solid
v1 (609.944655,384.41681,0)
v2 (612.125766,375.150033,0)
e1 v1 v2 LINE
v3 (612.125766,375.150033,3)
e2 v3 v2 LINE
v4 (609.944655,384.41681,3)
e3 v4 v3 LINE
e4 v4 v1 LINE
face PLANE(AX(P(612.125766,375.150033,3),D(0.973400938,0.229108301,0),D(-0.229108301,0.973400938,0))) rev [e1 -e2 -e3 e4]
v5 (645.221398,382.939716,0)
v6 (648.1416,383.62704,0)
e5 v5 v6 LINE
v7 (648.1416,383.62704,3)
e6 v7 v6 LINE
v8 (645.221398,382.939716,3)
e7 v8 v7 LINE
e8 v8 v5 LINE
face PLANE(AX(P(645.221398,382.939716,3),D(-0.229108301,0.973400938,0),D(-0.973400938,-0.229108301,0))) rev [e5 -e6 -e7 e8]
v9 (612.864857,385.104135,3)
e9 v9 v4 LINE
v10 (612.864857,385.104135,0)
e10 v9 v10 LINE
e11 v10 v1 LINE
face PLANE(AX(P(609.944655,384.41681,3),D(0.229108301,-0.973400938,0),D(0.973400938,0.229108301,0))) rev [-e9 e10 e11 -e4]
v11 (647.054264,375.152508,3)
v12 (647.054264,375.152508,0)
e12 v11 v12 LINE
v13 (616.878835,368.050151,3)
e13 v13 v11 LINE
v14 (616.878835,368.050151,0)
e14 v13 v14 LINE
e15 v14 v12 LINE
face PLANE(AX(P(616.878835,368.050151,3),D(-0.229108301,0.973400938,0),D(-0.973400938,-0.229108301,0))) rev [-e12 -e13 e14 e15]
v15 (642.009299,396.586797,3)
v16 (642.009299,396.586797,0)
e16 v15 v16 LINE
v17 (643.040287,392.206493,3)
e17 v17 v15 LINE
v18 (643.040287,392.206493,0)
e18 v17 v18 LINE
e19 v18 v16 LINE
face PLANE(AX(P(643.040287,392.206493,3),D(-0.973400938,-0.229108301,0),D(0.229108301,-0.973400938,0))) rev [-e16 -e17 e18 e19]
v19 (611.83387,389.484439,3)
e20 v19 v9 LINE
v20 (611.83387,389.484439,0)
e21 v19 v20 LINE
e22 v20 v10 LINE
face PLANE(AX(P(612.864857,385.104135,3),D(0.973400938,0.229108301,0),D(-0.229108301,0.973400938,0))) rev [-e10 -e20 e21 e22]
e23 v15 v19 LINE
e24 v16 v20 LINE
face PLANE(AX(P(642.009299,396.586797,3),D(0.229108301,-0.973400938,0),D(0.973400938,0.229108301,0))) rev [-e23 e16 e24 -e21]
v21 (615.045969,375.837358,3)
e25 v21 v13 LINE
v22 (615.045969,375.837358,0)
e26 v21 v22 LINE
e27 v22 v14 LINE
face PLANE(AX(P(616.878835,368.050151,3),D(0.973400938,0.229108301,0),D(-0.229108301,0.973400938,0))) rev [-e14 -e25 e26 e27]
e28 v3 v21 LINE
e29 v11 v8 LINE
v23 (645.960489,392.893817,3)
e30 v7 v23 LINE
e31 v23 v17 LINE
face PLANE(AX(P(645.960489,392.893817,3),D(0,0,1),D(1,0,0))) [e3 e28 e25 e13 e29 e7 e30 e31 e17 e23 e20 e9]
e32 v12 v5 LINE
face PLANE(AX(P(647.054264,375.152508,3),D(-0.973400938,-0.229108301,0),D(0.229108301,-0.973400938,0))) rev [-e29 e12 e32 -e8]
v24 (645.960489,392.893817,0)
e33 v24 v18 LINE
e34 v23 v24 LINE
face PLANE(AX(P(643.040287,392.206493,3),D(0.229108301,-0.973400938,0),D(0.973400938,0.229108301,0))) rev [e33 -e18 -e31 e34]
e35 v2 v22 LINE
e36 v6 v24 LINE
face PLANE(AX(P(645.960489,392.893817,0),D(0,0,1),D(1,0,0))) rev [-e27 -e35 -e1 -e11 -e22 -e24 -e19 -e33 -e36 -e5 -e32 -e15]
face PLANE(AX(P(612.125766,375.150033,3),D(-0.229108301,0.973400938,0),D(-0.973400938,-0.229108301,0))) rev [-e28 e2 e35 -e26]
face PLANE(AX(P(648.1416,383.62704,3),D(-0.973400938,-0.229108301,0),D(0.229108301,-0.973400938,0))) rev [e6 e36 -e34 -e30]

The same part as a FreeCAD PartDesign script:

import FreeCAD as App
import Part
import Sketcher
from FreeCAD import Vector
Q = App.Units.Quantity

doc = App.newDocument("Part")
params = doc.addObject("Spreadsheet::Sheet", "Params")
for row, (alias, value) in enumerate([
    ("sketch1_length", "31 mm"),
    ("sketch1_length2", "3 mm"),
    ("sketch1_length3", "8 mm"),
    ("sketch1_length4", "4.5 mm"),
    ("sketch1_length5", "9.52 mm"),
    ("pad1_length", "3 mm"),
], start=1):
    params.set(f"A{row}", alias)
    params.set(f"B{row}", "=" + value)
    params.setAlias(f"B{row}", alias)

body = doc.addObject("PartDesign::Body", "Body")

# Sketch on XY plane
sketch1 = doc.addObject("Sketcher::SketchObject", "Sketch")
body.addObject(sketch1)
sketch1.AttachmentSupport = (doc.XY_Plane, [""])
sketch1.MapMode = "FlatFace"
sketch1.addGeometry([
    Part.LineSegment(Vector(643, 392.2, 0), Vector(642, 396.6, 0)),  # 0
    Part.LineSegment(Vector(642, 396.6, 0), Vector(611.8, 389.5, 0)),  # 1
    Part.LineSegment(Vector(611.8, 389.5, 0), Vector(612.9, 385.1, 0)),  # 2
    Part.LineSegment(Vector(612.9, 385.1, 0), Vector(609.9, 384.4, 0)),  # 3
    Part.LineSegment(Vector(609.9, 384.4, 0), Vector(612.1, 375.2, 0)),  # 4
    Part.LineSegment(Vector(612.1, 375.2, 0), Vector(615, 375.8, 0)),  # 5
    Part.LineSegment(Vector(615, 375.8, 0), Vector(616.9, 368.1, 0)),  # 6
    Part.LineSegment(Vector(616.9, 368.1, 0), Vector(647.1, 375.2, 0)),  # 7
    Part.LineSegment(Vector(647.1, 375.2, 0), Vector(645.2, 382.9, 0)),  # 8
    Part.LineSegment(Vector(645.2, 382.9, 0), Vector(648.1, 383.6, 0)),  # 9
    Part.LineSegment(Vector(648.1, 383.6, 0), Vector(646, 392.9, 0)),  # 10
    Part.LineSegment(Vector(646, 392.9, 0), Vector(643, 392.2, 0)),  # 11
], False)
sketch1.addConstraint([
    Sketcher.Constraint("Coincident", 0, 2, 1, 1),
    Sketcher.Constraint("Coincident", 1, 2, 2, 1),
    Sketcher.Constraint("Coincident", 2, 2, 3, 1),
    Sketcher.Constraint("Coincident", 3, 2, 4, 1),
    Sketcher.Constraint("Coincident", 4, 2, 5, 1),
    Sketcher.Constraint("Coincident", 5, 2, 6, 1),
    Sketcher.Constraint("Coincident", 6, 2, 7, 1),
    Sketcher.Constraint("Coincident", 7, 2, 8, 1),
    Sketcher.Constraint("Coincident", 8, 2, 9, 1),
    Sketcher.Constraint("Coincident", 9, 2, 10, 1),
    Sketcher.Constraint("Coincident", 10, 2, 11, 1),
    Sketcher.Constraint("Coincident", 11, 2, 0, 1),
    Sketcher.Constraint("Perpendicular", 0, 1),
    Sketcher.Constraint("Perpendicular", 1, 2),
    Sketcher.Constraint("Perpendicular", 2, 3),
    Sketcher.Constraint("Perpendicular", 3, 4),
    Sketcher.Constraint("Perpendicular", 4, 5),
    Sketcher.Constraint("Perpendicular", 5, 6),
    Sketcher.Constraint("Perpendicular", 6, 7),
    Sketcher.Constraint("Perpendicular", 7, 8),
    Sketcher.Constraint("Perpendicular", 8, 9),
    Sketcher.Constraint("Perpendicular", 9, 10),
    Sketcher.Constraint("Perpendicular", 10, 11),
    Sketcher.Constraint("Equal", 0, 2),
    Sketcher.Constraint("Equal", 3, 5),
    Sketcher.Constraint("Equal", 1, 7),
    Sketcher.Constraint("Equal", 6, 8),
    Sketcher.Constraint("Equal", 5, 9),
    Sketcher.Constraint("Distance", 1, Q("31 mm")),
    Sketcher.Constraint("Distance", 3, Q("3 mm")),
    Sketcher.Constraint("Distance", 6, Q("8 mm")),
    Sketcher.Constraint("Distance", 0, Q("4.5 mm")),
    Sketcher.Constraint("Distance", 4, Q("9.52 mm")),
    Sketcher.Constraint("DistanceX", -1, 1, 0, 2, Q("642.009299 mm")),
    Sketcher.Constraint("DistanceX", -1, 1, 9, 2, Q("648.1416 mm")),
    Sketcher.Constraint("DistanceY", -1, 1, 1, 2, Q("389.484439 mm")),
])
sketch1.setExpression("Constraints[28]", "Params.sketch1_length")
sketch1.setExpression("Constraints[29]", "Params.sketch1_length2")
sketch1.setExpression("Constraints[30]", "Params.sketch1_length3")
sketch1.setExpression("Constraints[31]", "Params.sketch1_length4")
sketch1.setExpression("Constraints[32]", "Params.sketch1_length5")
pad1 = doc.addObject("PartDesign::Pad", "Pad")
body.addObject(pad1)
pad1.Profile = sketch1
pad1.setExpression("Length", "Params.pad1_length")

doc.recompute()
